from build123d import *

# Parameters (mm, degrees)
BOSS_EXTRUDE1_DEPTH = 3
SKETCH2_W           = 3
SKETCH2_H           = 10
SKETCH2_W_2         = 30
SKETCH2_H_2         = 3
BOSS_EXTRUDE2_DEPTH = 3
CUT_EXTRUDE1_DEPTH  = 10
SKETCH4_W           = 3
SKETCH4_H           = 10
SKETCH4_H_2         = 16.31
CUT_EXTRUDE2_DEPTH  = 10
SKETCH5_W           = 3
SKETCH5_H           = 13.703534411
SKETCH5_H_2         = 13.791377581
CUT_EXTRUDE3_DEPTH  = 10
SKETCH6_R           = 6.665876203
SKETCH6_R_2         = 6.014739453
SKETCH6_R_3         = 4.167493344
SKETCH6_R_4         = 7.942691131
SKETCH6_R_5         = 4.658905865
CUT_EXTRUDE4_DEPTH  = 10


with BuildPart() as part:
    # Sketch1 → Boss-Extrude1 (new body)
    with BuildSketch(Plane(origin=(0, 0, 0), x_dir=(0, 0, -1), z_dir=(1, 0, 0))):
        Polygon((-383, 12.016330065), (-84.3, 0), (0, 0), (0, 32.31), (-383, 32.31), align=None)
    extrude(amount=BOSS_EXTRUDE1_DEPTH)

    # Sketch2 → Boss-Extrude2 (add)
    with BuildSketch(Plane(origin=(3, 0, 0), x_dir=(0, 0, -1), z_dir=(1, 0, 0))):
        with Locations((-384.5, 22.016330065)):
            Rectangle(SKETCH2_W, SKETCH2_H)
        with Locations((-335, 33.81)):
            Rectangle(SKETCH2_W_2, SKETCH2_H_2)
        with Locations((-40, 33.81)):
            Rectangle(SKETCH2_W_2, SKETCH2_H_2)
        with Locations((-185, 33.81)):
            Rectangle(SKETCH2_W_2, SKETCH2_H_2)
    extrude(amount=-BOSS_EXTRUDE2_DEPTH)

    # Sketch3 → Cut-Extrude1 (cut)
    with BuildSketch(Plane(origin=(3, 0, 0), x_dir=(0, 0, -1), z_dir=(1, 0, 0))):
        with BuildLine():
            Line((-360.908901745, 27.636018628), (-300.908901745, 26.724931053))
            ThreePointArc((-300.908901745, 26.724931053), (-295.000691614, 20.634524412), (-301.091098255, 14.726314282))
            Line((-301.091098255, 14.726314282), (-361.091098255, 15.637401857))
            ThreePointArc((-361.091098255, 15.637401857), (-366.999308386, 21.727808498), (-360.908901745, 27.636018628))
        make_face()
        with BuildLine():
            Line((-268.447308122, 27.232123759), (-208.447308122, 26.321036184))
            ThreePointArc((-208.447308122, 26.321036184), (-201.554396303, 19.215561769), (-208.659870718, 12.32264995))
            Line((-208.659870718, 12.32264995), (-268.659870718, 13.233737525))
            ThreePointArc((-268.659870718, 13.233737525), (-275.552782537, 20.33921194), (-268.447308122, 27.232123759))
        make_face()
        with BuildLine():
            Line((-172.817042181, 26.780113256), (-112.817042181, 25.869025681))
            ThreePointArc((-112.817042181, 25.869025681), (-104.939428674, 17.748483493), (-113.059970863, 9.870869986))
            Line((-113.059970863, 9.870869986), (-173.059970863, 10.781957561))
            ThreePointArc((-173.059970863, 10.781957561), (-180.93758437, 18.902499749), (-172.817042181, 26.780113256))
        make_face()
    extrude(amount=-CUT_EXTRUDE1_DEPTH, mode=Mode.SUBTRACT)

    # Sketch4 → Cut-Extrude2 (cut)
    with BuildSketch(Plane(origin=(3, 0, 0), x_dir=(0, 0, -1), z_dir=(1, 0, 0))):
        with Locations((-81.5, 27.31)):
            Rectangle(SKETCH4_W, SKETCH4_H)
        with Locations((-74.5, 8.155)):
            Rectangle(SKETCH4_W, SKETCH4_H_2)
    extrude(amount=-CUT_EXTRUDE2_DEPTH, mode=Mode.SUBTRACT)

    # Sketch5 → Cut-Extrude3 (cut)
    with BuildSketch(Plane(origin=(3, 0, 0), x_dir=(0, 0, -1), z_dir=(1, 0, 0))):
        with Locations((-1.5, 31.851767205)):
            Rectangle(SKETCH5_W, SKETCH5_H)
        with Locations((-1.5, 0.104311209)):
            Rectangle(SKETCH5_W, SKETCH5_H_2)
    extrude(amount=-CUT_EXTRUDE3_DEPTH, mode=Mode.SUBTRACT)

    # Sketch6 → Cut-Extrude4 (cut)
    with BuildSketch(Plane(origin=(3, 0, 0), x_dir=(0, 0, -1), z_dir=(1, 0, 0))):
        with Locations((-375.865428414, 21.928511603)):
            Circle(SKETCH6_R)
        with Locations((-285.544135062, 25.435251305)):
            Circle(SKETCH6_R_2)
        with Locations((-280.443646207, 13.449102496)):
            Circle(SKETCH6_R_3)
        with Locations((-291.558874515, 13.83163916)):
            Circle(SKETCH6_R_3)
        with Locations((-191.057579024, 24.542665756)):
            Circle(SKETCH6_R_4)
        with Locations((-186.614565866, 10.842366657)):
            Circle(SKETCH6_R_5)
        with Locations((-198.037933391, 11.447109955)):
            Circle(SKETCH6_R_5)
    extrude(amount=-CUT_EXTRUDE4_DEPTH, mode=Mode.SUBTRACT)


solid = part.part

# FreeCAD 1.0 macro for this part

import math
import FreeCAD as App
import Part
import Sketcher
from FreeCAD import Vector


def add_polygon(sketch, points):
    """Adds a closed chain of lines whose ends are joined by coincident constraints."""
    first, n = sketch.GeometryCount, len(points)
    for a, b in zip(points, points[1:] + points[:1]):
        sketch.addGeometry(Part.LineSegment(App.Vector(*a, 0), App.Vector(*b, 0)), False)
    for i in range(n):
        sketch.addConstraint(Sketcher.Constraint("Coincident", first + i, 2, first + (i + 1) % n, 1))

doc = App.newDocument("Part")
params = doc.addObject("Spreadsheet::Sheet", "Params")
for row, (alias, value) in enumerate([
    ("sketch1_height", "383 mm"),
    ("sketch1_height2", "84.3 mm"),
    ("sketch1_width", "32.31 mm"),
    ("pad1_length", "3 mm"),
    ("sketch2_width", "10 mm"),
    ("sketch2_width2", "3 mm"),
    ("sketch2_height", "30 mm"),
    ("pad2_length", "3 mm"),
    ("sketch3_radius", "6 mm"),
    ("sketch3_radius2", "7 mm"),
    ("sketch3_radius3", "8 mm"),
    ("pocket1_length", "10 mm"),
    ("sketch4_width", "10 mm"),
    ("sketch4_height", "3 mm"),
    ("sketch4_width2", "16.31 mm"),
    ("pocket2_length", "10 mm"),
    ("sketch5_height", "3 mm"),
    ("pocket3_length", "10 mm"),
    ("pocket4_length", "10 mm"),
], start=1):
    params.set(f"A{row}", alias)
    params.set(f"B{row}", "=" + value)
    params.setAlias(f"B{row}", alias)

body = doc.addObject("PartDesign::Body", "Body")

# Sketch on YZ plane
sketch1 = body.newObject("Sketcher::SketchObject", "Sketch")
sketch1.AttachmentSupport = (doc.getObject("YZ_Plane"), [""])
sketch1.MapMode = "FlatFace"
add_polygon(sketch1, [(12, 383), (0, 84), (0, 0), (32, 0), (32, 383)])  # lines 0-4
sketch1.addConstraint([
    Sketcher.Constraint("Vertical", 1),
    Sketcher.Constraint("Horizontal", 2),
    Sketcher.Constraint("Vertical", 3),
    Sketcher.Constraint("Horizontal", 4),
    Sketcher.Constraint("Coincident", 1, 2, -1, 1),
    Sketcher.Constraint("DistanceY", 3, 1, 3, 2, 383.0),
    Sketcher.Constraint("DistanceY", 1, 2, 1, 1, 84.3),
    Sketcher.Constraint("DistanceX", 2, 1, 2, 2, 32.31),
    Sketcher.Constraint("DistanceX", 4, 2, 4, 1, 20.29367),
])
sketch1.setExpression("Constraints[10]", "Params.sketch1_height")
sketch1.setExpression("Constraints[11]", "Params.sketch1_height2")
sketch1.setExpression("Constraints[12]", "Params.sketch1_width")
pad1 = body.newObject("PartDesign::Pad", "Pad")
pad1.Profile = sketch1
pad1.setExpression("Length", "Params.pad1_length")

# Sketch on YZ plane
sketch2 = body.newObject("Sketcher::SketchObject", "Sketch001")
sketch2.AttachmentSupport = (doc.getObject("YZ_Plane"), [""])
sketch2.MapMode = "FlatFace"
sketch2.AttachmentOffset = App.Placement(Vector(0, 0, 3), App.Rotation())
add_polygon(sketch2, [(27, 386), (17, 386), (17, 383), (27, 383)])  # lines 0-3
add_polygon(sketch2, [(35.3, 350), (32.3, 350), (32.3, 320), (35.3, 320)])  # lines 4-7
add_polygon(sketch2, [(35.3, 55), (32.3, 55), (32.3, 25), (35.3, 25)])  # lines 8-11
add_polygon(sketch2, [(35.3, 200), (32.3, 200), (32.3, 170), (35.3, 170)])  # lines 12-15
sketch2.addConstraint([
    Sketcher.Constraint("Horizontal", 0),
    Sketcher.Constraint("Vertical", 1),
    Sketcher.Constraint("Horizontal", 2),
    Sketcher.Constraint("Vertical", 3),
    Sketcher.Constraint("Horizontal", 4),
    Sketcher.Constraint("Vertical", 5),
    Sketcher.Constraint("Horizontal", 6),
    Sketcher.Constraint("Vertical", 7),
    Sketcher.Constraint("Horizontal", 8),
    Sketcher.Constraint("Vertical", 9),
    Sketcher.Constraint("Horizontal", 10),
    Sketcher.Constraint("Vertical", 11),
    Sketcher.Constraint("Horizontal", 12),
    Sketcher.Constraint("Vertical", 13),
    Sketcher.Constraint("Horizontal", 14),
    Sketcher.Constraint("Vertical", 15),
    Sketcher.Constraint("Vertical", 5, 2, 8, 2),
    Sketcher.Constraint("Vertical", 7, 2, 10, 2),
    Sketcher.Constraint("Vertical", 9, 2, 12, 2),
    Sketcher.Constraint("Vertical", 11, 2, 14, 2),
    Sketcher.Constraint("Equal", 14, 1),
    Sketcher.Constraint("Equal", 7, 9),
    Sketcher.Constraint("Equal", 11, 13),
    Sketcher.Constraint("DistanceX", 0, 2, 0, 1, 10.0),
    Sketcher.Constraint("DistanceX", 4, 2, 4, 1, 3.0),
    Sketcher.Constraint("DistanceY", 5, 2, 5, 1, 30.0),
    Sketcher.Constraint("DistanceY", -1, 1, 0, 2, 386.0),
    Sketcher.Constraint("DistanceY", -1, 1, 4, 2, 350.0),
    Sketcher.Constraint("DistanceY", -1, 1, 8, 2, 55.0),
    Sketcher.Constraint("DistanceY", -1, 1, 12, 2, 200.0),
    Sketcher.Constraint("DistanceX", -1, 1, 4, 2, 32.31),
    Sketcher.Constraint("DistanceX", -1, 1, 0, 2, 17.01633),
])
sketch2.setExpression("Constraints[39]", "Params.sketch2_width")
sketch2.setExpression("Constraints[40]", "Params.sketch2_width2")
sketch2.setExpression("Constraints[41]", "Params.sketch2_height")
pad2 = body.newObject("PartDesign::Pad", "Pad001")
pad2.Profile = sketch2
pad2.setExpression("Length", "Params.pad2_length")
pad2.Reversed = True

# Sketch on YZ plane
sketch3 = body.newObject("Sketcher::SketchObject", "Sketch002")
sketch3.AttachmentSupport = (doc.getObject("YZ_Plane"), [""])
sketch3.MapMode = "FlatFace"
sketch3.AttachmentOffset = App.Placement(Vector(0, 0, 3), App.Rotation())
sketch3.addGeometry([
    Part.LineSegment(Vector(27, 301, 0), Vector(28, 361, 0)),  # 0
    Part.ArcOfCircle(Part.Circle(Vector(22, 361, 0), Vector(0, 0, 1), 6), math.radians(-1), math.radians(179)),  # 1
    Part.LineSegment(Vector(16, 361, 0), Vector(15, 301, 0)),  # 2
    Part.ArcOfCircle(Part.Circle(Vector(21, 301, 0), Vector(0, 0, 1), 6), math.radians(179), math.radians(359)),  # 3
    Part.LineSegment(Vector(26, 208, 0), Vector(27, 268, 0)),  # 4
    Part.ArcOfCircle(Part.Circle(Vector(20, 269, 0), Vector(0, 0, 1), 7), math.radians(-1), math.radians(179)),  # 5
    Part.LineSegment(Vector(13, 269, 0), Vector(12, 209, 0)),  # 6
    Part.ArcOfCircle(Part.Circle(Vector(19, 209, 0), Vector(0, 0, 1), 7), math.radians(179), math.radians(359)),  # 7
    Part.LineSegment(Vector(26, 113, 0), Vector(27, 173, 0)),  # 8
    Part.ArcOfCircle(Part.Circle(Vector(19, 173, 0), Vector(0, 0, 1), 8), math.radians(-1), math.radians(179)),  # 9
    Part.LineSegment(Vector(11, 173, 0), Vector(10, 113, 0)),  # 10
    Part.ArcOfCircle(Part.Circle(Vector(18, 113, 0), Vector(0, 0, 1), 8), math.radians(179), math.radians(359)),  # 11
], False)
sketch3.addConstraint([
    Sketcher.Constraint("Tangent", 0, 2, 1, 1),
    Sketcher.Constraint("Tangent", 1, 2, 2, 1),
    Sketcher.Constraint("Tangent", 2, 2, 3, 1),
    Sketcher.Constraint("Tangent", 3, 2, 0, 1),
    Sketcher.Constraint("Tangent", 4, 2, 5, 1),
    Sketcher.Constraint("Tangent", 5, 2, 6, 1),
    Sketcher.Constraint("Tangent", 6, 2, 7, 1),
    Sketcher.Constraint("Tangent", 7, 2, 4, 1),
    Sketcher.Constraint("Tangent", 8, 2, 9, 1),
    Sketcher.Constraint("Tangent", 9, 2, 10, 1),
    Sketcher.Constraint("Tangent", 10, 2, 11, 1),
    Sketcher.Constraint("Tangent", 11, 2, 8, 1),
    Sketcher.Constraint("Equal", 1, 3),
    Sketcher.Constraint("Equal", 5, 7),
    Sketcher.Constraint("Equal", 9, 11),
    Sketcher.Constraint("Parallel", 2, 4),
    Sketcher.Constraint("Parallel", 6, 8),
    Sketcher.Constraint("Equal", 2, 4),
    Sketcher.Constraint("Equal", 6, 8),
    Sketcher.Constraint("Radius", 1, 6.0),
    Sketcher.Constraint("Radius", 5, 7.0),
    Sketcher.Constraint("Radius", 9, 8.0),
    Sketcher.Constraint("DistanceY", -1, 1, 1, 3, 361.0),
    Sketcher.Constraint("DistanceY", -1, 1, 3, 3, 301.0),
    Sketcher.Constraint("DistanceX", 9, 3, 7, 2, 7.540001),
    Sketcher.Constraint("DistanceX", 5, 3, 3, 2, 6.492),
    Sketcher.Constraint("DistanceY", -1, 1, 0, 2, 360.908902),
    Sketcher.Constraint("DistanceX", -1, 1, 1, 2, 15.637402),
    Sketcher.Constraint("DistanceY", 9, 3, 7, 2, 35.508802),
    Sketcher.Constraint("DistanceY", -1, 1, 5, 3, 268.553589),
])
sketch3.setExpression("Constraints[19]", "Params.sketch3_radius")
sketch3.setExpression("Constraints[20]", "Params.sketch3_radius2")
sketch3.setExpression("Constraints[21]", "Params.sketch3_radius3")
pocket1 = body.newObject("PartDesign::Pocket", "Pocket")
pocket1.Profile = sketch3
pocket1.setExpression("Length", "Params.pocket1_length")

# Sketch on YZ plane
sketch4 = body.newObject("Sketcher::SketchObject", "Sketch003")
sketch4.AttachmentSupport = (doc.getObject("YZ_Plane"), [""])
sketch4.MapMode = "FlatFace"
sketch4.AttachmentOffset = App.Placement(Vector(0, 0, 3), App.Rotation())
add_polygon(sketch4, [(32.3, 83), (22.3, 83), (22.3, 80), (32.3, 80)])  # lines 0-3
add_polygon(sketch4, [(16.3, 76), (0, 76), (0, 73), (16.3, 73)])  # lines 4-7
sketch4.addConstraint([
    Sketcher.Constraint("Horizontal", 0),
    Sketcher.Constraint("Vertical", 1),
    Sketcher.Constraint("Horizontal", 2),
    Sketcher.Constraint("Vertical", 3),
    Sketcher.Constraint("Horizontal", 4),
    Sketcher.Constraint("Vertical", 5),
    Sketcher.Constraint("Horizontal", 6),
    Sketcher.Constraint("Vertical", 7),
    Sketcher.Constraint("PointOnObject", 4, 2, -2),
    Sketcher.Constraint("Equal", 3, 5),
    Sketcher.Constraint("DistanceX", 0, 2, 0, 1, 10.0),
    Sketcher.Constraint("DistanceY", 1, 2, 1, 1, 3.0),
    Sketcher.Constraint("DistanceY", -1, 1, 0, 2, 83.0),
    Sketcher.Constraint("DistanceY", -1, 1, 4, 2, 76.0),
    Sketcher.Constraint("DistanceX", 6, 2, 1, 2, 6.0),
    Sketcher.Constraint("DistanceX", 4, 2, 4, 1, 16.31),
])
sketch4.setExpression("Constraints[18]", "Params.sketch4_width")
sketch4.setExpression("Constraints[19]", "Params.sketch4_height")
sketch4.setExpression("Constraints[23]", "Params.sketch4_width2")
pocket2 = body.newObject("PartDesign::Pocket", "Pocket001")
pocket2.Profile = sketch4
pocket2.setExpression("Length", "Params.pocket2_length")

# Sketch on YZ plane
sketch5 = body.newObject("Sketcher::SketchObject", "Sketch004")
sketch5.AttachmentSupport = (doc.getObject("YZ_Plane"), [""])
sketch5.MapMode = "FlatFace"
sketch5.AttachmentOffset = App.Placement(Vector(0, 0, 3), App.Rotation())
add_polygon(sketch5, [(38.7, 3), (25, 3), (25, 0), (38.7, 0)])  # lines 0-3
add_polygon(sketch5, [(7, 3), (-6.8, 3), (-6.8, 0), (7, 0)])  # lines 4-7
sketch5.addConstraint([
    Sketcher.Constraint("Horizontal", 0),
    Sketcher.Constraint("Vertical", 1),
    Sketcher.Constraint("Horizontal", 2),
    Sketcher.Constraint("Vertical", 3),
    Sketcher.Constraint("Horizontal", 4),
    Sketcher.Constraint("Vertical", 5),
    Sketcher.Constraint("Horizontal", 6),
    Sketcher.Constraint("Vertical", 7),
    Sketcher.Constraint("PointOnObject", 1, 2, -1),
    Sketcher.Constraint("PointOnObject", 5, 2, -1),
    Sketcher.Constraint("Horizontal", 3, 2, 4, 2),
    Sketcher.Constraint("DistanceY", 1, 2, 1, 1, 3.0),
    Sketcher.Constraint("DistanceX", -1, 1, 0, 2, 25.0),
    Sketcher.Constraint("DistanceX", -1, 1, 6, 2, 7.0),
    Sketcher.Constraint("DistanceX", 0, 2, 0, 1, 13.703534),
    Sketcher.Constraint("DistanceX", 4, 2, 4, 1, 13.791378),
])
sketch5.setExpression("Constraints[19]", "Params.sketch5_height")
pocket3 = body.newObject("PartDesign::Pocket", "Pocket002")
pocket3.Profile = sketch5
pocket3.setExpression("Length", "Params.pocket3_length")

# Sketch on YZ plane
sketch6 = body.newObject("Sketcher::SketchObject", "Sketch005")
sketch6.AttachmentSupport = (doc.getObject("YZ_Plane"), [""])
sketch6.MapMode = "FlatFace"
sketch6.AttachmentOffset = App.Placement(Vector(0, 0, 3), App.Rotation())
sketch6.addGeometry([
    Part.Circle(Vector(21.9, 375.9, 0), Vector(0, 0, 1), 6.7),  # 0
    Part.Circle(Vector(25.4, 285.5, 0), Vector(0, 0, 1), 6),  # 1
    Part.Circle(Vector(13.4, 280.4, 0), Vector(0, 0, 1), 4.2),  # 2
    Part.Circle(Vector(13.8, 291.6, 0), Vector(0, 0, 1), 4.2),  # 3
    Part.Circle(Vector(24.5, 191.1, 0), Vector(0, 0, 1), 7.9),  # 4
    Part.Circle(Vector(10.8, 186.6, 0), Vector(0, 0, 1), 4.7),  # 5
    Part.Circle(Vector(11.4, 198, 0), Vector(0, 0, 1), 4.7),  # 6
], False)
sketch6.addConstraint([
    Sketcher.Constraint("Equal", 2, 3),
    Sketcher.Constraint("Equal", 5, 6),
    Sketcher.Constraint("Diameter", 1, 12.029479),
    Sketcher.Constraint("Diameter", 5, 9.317812),
    Sketcher.Constraint("Diameter", 0, 13.331752),
    Sketcher.Constraint("Diameter", 2, 8.334987),
    Sketcher.Constraint("Diameter", 4, 15.885382),
    Sketcher.Constraint("DistanceX", 5, 3, 4, 3, 13.700299),
    Sketcher.Constraint("DistanceY", 6, 3, 1, 3, 87.506202),
    Sketcher.Constraint("DistanceX", -1, 1, 0, 3, 21.928512),
    Sketcher.Constraint("DistanceY", -1, 1, 0, 3, 375.865428),
    Sketcher.Constraint("DistanceX", -1, 1, 1, 3, 25.435251),
    Sketcher.Constraint("DistanceX", -1, 1, 3, 3, 13.831639),
    Sketcher.Constraint("DistanceY", -1, 1, 4, 3, 191.057579),
    Sketcher.Constraint("DistanceX", -1, 1, 6, 3, 11.44711),
    Sketcher.Constraint("DistanceX", 2, 3, 1, 3, 11.986149),
    Sketcher.Constraint("DistanceY", 2, 3, 1, 3, 5.100489),
    Sketcher.Constraint("DistanceY", 2, 3, 3, 3, 11.115228),
    Sketcher.Constraint("DistanceY", 5, 3, 2, 3, 93.82908),
    Sketcher.Constraint("DistanceY", -1, 1, 1, 3, 285.544135),
    Sketcher.Constraint("DistanceX", -1, 1, 4, 3, 24.542666),
])
pocket4 = body.newObject("PartDesign::Pocket", "Pocket003")
pocket4.Profile = sketch6
pocket4.setExpression("Length", "Params.pocket4_length")

doc.recompute()
